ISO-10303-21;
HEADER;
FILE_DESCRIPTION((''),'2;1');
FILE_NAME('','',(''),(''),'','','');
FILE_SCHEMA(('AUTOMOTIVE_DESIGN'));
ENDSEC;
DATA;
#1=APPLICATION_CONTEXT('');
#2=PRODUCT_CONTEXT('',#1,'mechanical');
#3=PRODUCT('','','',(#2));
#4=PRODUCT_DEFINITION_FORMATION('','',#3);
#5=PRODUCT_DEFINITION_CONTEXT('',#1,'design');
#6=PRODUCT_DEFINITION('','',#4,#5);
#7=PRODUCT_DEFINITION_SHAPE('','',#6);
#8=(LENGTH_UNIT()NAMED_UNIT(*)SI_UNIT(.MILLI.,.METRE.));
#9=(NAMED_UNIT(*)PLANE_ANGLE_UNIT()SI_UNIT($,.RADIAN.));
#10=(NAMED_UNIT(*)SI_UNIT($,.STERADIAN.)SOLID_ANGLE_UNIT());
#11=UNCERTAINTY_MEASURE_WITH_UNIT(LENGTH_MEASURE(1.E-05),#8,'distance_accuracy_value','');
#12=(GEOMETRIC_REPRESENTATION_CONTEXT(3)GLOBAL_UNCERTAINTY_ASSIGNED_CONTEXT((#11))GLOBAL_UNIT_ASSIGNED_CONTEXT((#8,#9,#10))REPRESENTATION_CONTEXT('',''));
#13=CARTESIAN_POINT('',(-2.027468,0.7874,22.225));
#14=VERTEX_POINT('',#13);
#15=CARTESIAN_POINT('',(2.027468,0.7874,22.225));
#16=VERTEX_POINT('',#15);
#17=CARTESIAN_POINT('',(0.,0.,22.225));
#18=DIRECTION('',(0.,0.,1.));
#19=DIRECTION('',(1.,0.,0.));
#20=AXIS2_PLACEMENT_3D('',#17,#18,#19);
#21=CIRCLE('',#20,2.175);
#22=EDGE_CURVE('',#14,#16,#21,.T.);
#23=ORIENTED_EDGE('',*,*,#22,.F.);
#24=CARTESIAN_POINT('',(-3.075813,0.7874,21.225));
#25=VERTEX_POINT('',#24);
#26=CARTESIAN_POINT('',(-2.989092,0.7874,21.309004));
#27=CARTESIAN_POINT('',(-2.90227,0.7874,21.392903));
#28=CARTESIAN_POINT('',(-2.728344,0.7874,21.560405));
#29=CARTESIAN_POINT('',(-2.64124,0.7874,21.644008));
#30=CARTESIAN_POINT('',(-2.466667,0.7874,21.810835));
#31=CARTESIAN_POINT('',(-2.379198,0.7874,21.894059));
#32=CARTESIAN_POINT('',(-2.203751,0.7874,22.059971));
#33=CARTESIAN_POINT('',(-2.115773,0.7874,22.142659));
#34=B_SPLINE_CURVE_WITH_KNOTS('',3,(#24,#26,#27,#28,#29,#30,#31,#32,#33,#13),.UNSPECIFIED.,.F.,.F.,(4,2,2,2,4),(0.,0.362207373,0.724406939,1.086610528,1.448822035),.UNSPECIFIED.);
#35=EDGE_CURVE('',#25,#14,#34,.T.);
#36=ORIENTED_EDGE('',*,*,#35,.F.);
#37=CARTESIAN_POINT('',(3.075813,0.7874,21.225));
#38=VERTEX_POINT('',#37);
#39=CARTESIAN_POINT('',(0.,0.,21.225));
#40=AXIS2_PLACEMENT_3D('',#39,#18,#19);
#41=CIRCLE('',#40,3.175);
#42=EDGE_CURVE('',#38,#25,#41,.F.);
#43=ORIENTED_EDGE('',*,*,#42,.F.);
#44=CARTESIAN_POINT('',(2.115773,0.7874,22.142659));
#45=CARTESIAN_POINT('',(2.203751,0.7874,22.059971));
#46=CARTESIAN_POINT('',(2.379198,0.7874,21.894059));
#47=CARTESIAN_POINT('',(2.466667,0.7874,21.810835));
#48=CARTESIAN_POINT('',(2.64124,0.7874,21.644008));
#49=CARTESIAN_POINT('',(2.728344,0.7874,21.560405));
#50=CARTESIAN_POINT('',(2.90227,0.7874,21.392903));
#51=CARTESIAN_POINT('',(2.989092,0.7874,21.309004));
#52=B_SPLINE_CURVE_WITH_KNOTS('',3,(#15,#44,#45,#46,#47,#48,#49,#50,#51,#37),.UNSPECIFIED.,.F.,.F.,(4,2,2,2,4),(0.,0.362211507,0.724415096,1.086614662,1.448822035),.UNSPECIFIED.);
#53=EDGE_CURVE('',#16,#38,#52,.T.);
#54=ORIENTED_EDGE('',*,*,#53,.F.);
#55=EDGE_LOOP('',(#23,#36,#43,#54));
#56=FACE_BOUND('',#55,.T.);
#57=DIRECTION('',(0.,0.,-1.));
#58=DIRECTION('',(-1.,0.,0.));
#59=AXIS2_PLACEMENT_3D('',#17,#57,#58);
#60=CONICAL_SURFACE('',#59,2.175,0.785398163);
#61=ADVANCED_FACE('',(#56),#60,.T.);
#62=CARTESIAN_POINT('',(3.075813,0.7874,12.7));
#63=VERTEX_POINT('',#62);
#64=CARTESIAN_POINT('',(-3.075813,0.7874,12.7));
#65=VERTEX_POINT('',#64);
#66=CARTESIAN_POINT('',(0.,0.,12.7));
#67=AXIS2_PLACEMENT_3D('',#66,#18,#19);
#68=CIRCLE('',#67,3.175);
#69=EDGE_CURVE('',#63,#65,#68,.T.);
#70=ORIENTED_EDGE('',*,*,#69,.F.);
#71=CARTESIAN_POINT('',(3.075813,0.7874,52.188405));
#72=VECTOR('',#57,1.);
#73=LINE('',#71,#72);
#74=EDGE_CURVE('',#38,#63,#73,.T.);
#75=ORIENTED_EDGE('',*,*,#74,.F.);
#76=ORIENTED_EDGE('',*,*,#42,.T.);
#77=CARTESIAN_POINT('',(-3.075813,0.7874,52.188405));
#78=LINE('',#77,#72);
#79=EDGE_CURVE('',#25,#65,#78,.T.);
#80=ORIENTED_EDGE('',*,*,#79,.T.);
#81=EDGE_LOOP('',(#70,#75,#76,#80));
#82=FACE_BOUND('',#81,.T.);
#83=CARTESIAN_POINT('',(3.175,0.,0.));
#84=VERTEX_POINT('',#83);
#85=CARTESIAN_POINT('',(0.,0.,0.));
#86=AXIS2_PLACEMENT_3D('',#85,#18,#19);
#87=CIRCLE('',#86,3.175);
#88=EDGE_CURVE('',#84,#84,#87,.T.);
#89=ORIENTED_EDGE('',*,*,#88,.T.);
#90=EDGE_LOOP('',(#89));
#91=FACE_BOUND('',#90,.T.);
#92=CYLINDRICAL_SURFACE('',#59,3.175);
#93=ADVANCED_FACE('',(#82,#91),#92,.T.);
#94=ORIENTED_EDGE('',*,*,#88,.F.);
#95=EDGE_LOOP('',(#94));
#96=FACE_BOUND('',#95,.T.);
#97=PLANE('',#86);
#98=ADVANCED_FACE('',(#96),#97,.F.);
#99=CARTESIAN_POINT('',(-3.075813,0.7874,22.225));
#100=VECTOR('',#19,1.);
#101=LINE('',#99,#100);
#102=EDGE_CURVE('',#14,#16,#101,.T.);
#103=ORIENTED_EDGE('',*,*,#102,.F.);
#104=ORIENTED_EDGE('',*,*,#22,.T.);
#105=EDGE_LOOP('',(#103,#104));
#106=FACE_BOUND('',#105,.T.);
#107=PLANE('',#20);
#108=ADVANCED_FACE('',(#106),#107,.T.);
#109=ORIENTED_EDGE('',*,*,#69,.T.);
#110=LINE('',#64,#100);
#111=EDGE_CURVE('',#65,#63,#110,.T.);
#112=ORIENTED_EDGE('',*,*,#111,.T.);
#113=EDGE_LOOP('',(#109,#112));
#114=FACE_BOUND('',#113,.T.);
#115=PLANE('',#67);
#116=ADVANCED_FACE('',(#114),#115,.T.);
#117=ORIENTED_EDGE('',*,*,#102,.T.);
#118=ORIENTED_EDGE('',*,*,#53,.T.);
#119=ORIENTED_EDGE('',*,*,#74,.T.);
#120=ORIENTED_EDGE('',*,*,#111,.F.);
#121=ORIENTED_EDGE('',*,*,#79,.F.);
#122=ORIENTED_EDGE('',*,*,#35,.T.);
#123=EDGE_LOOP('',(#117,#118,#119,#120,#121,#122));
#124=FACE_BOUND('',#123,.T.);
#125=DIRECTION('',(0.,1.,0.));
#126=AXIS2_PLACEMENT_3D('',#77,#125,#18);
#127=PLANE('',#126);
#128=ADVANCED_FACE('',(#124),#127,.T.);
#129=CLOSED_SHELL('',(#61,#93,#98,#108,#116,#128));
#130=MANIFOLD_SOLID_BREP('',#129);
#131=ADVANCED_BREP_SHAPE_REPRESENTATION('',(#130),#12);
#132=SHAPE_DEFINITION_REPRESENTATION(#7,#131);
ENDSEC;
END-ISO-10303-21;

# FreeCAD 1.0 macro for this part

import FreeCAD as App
import Part
import Sketcher

V = App.Vector
Q = App.Units.Quantity


def edges_at(feature, points):
    """Names of the edges that pass closest to the given points."""
    edges = feature.Shape.Edges
    near = lambda p: min(range(len(edges)), key=lambda i: edges[i].distToShape(Part.Vertex(*p))[0])
    return sorted({f"Edge{near(p) + 1}" for p in points})


def add_polygon(sketch, points):
    """Adds a closed chain of lines whose ends are joined by coincident constraints."""
    first, n = sketch.GeometryCount, len(points)
    for a, b in zip(points, points[1:] + points[:1]):
        sketch.addGeometry(Part.LineSegment(App.Vector(*a, 0), App.Vector(*b, 0)), False)
    for i in range(n):
        sketch.addConstraint(Sketcher.Constraint("Coincident", first + i, 2, first + (i + 1) % n, 1))

doc = App.newDocument("Part")
body = doc.addObject("PartDesign::Body", "Body")

# Sketch on XY plane
sketch1 = doc.addObject("Sketcher::SketchObject", "Sketch")
body.addObject(sketch1)
sketch1.AttachmentSupport = (doc.XY_Plane, [""])
sketch1.MapMode = "FlatFace"
sketch1.addGeometry(Part.Circle(V(0, 0, 0), V(0, 0, 1), 3.2), False)
sketch1.addConstraint(Sketcher.Constraint("Coincident", 0, 3, -1, 1))
sketch1.addConstraint(Sketcher.Constraint("Diameter", 0, Q("0.25 in")))
pad1 = doc.addObject("PartDesign::Pad", "Pad")
body.addObject(pad1)
pad1.Profile = sketch1
pad1.Length = Q("0.875 in")

# Sketch on XY plane
sketch2 = doc.addObject("Sketcher::SketchObject", "Sketch001")
body.addObject(sketch2)
sketch2.AttachmentSupport = (doc.XY_Plane, [""])
sketch2.MapMode = "FlatFace"
sketch2.AttachmentOffset = App.Placement(V(0, 0, 0.875 * 25.4), App.Rotation())
add_polygon(sketch2, [(-28, 1), (28, 1), (28, 50), (-28, 50)])  # lines 0-3
sketch2.addConstraint(Sketcher.Constraint("Horizontal", 0))
sketch2.addConstraint(Sketcher.Constraint("Vertical", 1))
sketch2.addConstraint(Sketcher.Constraint("Horizontal", 2))
sketch2.addConstraint(Sketcher.Constraint("Vertical", 3))
sketch2.addConstraint(Sketcher.Constraint("DistanceY", -1, 1, 0, 2, Q("0.031 in")))
sketch2.addConstraint(Sketcher.Constraint("DistanceY", 1, 1, 1, 2, 49.603588))
sketch2.addConstraint(Sketcher.Constraint("DistanceX", 0, 1, 0, 2, 55.755215))
sketch2.addConstraint(Sketcher.Constraint("DistanceX", -1, 1, 0, 2, 27.877607))
pocket1 = doc.addObject("PartDesign::Pocket", "Pocket")
body.addObject(pocket1)
pocket1.Profile = sketch2
pocket1.Type = "TwoLengths"
pocket1.Length = 1
pocket1.Length2 = Q("0.375 in")
pocket1.Reversed = True
doc.recompute()

chamfer = doc.addObject("PartDesign::Chamfer", "Chamfer")
body.addObject(chamfer)
chamfer.Base = (pocket1, edges_at(pocket1, [(-0.397, -3.15, 22.225)]))
chamfer.Size = 1

doc.recompute()
